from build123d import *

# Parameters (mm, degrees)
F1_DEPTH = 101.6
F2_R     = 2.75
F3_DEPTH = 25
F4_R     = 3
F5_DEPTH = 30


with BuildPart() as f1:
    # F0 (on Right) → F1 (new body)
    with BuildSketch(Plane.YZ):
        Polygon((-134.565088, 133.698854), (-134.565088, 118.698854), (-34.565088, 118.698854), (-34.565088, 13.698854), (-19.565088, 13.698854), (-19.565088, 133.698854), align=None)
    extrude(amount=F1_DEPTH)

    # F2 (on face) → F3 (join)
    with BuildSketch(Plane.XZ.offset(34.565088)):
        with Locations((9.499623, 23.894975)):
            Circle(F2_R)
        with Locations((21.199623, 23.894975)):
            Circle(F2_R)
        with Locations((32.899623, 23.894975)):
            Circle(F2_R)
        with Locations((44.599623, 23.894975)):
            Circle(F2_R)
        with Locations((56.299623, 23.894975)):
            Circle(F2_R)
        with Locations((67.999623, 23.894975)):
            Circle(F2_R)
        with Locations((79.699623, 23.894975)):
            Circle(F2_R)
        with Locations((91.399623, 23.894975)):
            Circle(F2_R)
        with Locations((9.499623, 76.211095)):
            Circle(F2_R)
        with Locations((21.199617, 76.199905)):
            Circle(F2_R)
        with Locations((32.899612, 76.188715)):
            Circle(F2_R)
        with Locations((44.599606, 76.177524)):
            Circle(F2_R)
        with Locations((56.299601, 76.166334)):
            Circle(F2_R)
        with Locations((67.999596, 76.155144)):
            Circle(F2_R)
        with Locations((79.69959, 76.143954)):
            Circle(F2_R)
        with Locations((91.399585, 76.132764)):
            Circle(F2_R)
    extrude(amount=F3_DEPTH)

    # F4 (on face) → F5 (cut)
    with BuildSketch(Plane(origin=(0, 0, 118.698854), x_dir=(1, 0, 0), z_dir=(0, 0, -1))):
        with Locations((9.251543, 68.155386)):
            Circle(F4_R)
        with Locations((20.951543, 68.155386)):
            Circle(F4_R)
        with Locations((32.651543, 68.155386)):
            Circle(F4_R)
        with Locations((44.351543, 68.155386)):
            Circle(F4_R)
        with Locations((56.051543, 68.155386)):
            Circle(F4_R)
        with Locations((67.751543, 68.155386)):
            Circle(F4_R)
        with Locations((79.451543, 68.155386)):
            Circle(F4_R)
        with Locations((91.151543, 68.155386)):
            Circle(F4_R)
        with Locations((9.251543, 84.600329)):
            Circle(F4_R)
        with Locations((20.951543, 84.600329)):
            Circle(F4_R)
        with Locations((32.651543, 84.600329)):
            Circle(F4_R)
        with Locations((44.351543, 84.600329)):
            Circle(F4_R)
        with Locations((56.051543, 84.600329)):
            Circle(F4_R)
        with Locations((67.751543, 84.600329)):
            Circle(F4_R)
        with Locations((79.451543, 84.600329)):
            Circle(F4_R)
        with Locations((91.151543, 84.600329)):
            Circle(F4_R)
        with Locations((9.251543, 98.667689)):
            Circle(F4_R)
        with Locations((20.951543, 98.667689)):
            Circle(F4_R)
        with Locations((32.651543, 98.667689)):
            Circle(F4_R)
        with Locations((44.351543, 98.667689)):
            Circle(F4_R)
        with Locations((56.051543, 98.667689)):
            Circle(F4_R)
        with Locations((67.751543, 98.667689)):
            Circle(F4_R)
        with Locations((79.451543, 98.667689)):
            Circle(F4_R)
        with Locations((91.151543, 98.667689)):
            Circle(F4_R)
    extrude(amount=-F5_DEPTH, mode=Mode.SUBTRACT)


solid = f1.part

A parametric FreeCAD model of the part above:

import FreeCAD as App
import Part
import Sketcher
from FreeCAD import Vector
Q = App.Units.Quantity


def add_polygon(sketch, points):
    """Adds a closed chain of lines whose ends are joined by coincident constraints."""
    first, n = sketch.GeometryCount, len(points)
    for a, b in zip(points, points[1:] + points[:1]):
        sketch.addGeometry(Part.LineSegment(App.Vector(*a, 0), App.Vector(*b, 0)), False)
    for i in range(n):
        sketch.addConstraint(Sketcher.Constraint("Coincident", first + i, 2, first + (i + 1) % n, 1))

doc = App.newDocument("Part")
body = doc.addObject("PartDesign::Body", "Body")

sketch1 = body.newObject("Sketcher::SketchObject", "Sketch")
sketch1.AttachmentSupport = (doc.getObject("YZ_Plane"), [""])
sketch1.MapMode = "FlatFace"
add_polygon(sketch1, [(-135, 134), (-135, 119), (-35, 119), (-35, 14), (-20, 14), (-20, 134)])
sketch1.addConstraint(Sketcher.Constraint("Vertical", 0))
sketch1.addConstraint(Sketcher.Constraint("Horizontal", 1))
sketch1.addConstraint(Sketcher.Constraint("Vertical", 2))
sketch1.addConstraint(Sketcher.Constraint("Horizontal", 3))
sketch1.addConstraint(Sketcher.Constraint("Vertical", 4))
sketch1.addConstraint(Sketcher.Constraint("Horizontal", 5))
sketch1.addConstraint(Sketcher.Constraint("Equal", 3, 0))
sketch1.addConstraint(Sketcher.Constraint("DistanceX", 1, 1, 1, 2, Q("100 mm")))
sketch1.addConstraint(Sketcher.Constraint("DistanceX", 3, 1, 3, 2, Q("15 mm")))
sketch1.addConstraint(Sketcher.Constraint("DistanceY", 2, 2, 2, 1, Q("105 mm")))
sketch1.addConstraint(Sketcher.Constraint("DistanceX", 0, 2, -1, 1, Q("134.565088 mm")))
sketch1.addConstraint(Sketcher.Constraint("DistanceY", -1, 1, 0, 2, Q("118.698854 mm")))
pad1 = body.newObject("PartDesign::Pad", "Pad")
pad1.Profile = sketch1
pad1.Length = 101.6

sketch2 = body.newObject("Sketcher::SketchObject", "Sketch001")
sketch2.AttachmentSupport = (doc.getObject("XZ_Plane"), [""])
sketch2.MapMode = "FlatFace"
sketch2.AttachmentOffset = App.Placement(Vector(0, 0, 34.565088), App.Rotation())
sketch2.addGeometry(Part.Circle(Vector(9.5, 23.9, 0), Vector(0, 0, 1), 2.8), False)
sketch2.addGeometry(Part.Circle(Vector(21.2, 23.9, 0), Vector(0, 0, 1), 2.8), False)
sketch2.addGeometry(Part.Circle(Vector(32.9, 23.9, 0), Vector(0, 0, 1), 2.8), False)
sketch2.addGeometry(Part.Circle(Vector(44.6, 23.9, 0), Vector(0, 0, 1), 2.8), False)
sketch2.addGeometry(Part.Circle(Vector(56.3, 23.9, 0), Vector(0, 0, 1), 2.8), False)
sketch2.addGeometry(Part.Circle(Vector(68, 23.9, 0), Vector(0, 0, 1), 2.8), False)
sketch2.addGeometry(Part.Circle(Vector(79.7, 23.9, 0), Vector(0, 0, 1), 2.8), False)
sketch2.addGeometry(Part.Circle(Vector(91.4, 23.9, 0), Vector(0, 0, 1), 2.8), False)
sketch2.addGeometry(Part.Circle(Vector(9.5, 76.2, 0), Vector(0, 0, 1), 2.8), False)
sketch2.addGeometry(Part.Circle(Vector(21.2, 76.2, 0), Vector(0, 0, 1), 2.8), False)
sketch2.addGeometry(Part.Circle(Vector(32.9, 76.2, 0), Vector(0, 0, 1), 2.8), False)
sketch2.addGeometry(Part.Circle(Vector(44.6, 76.2, 0), Vector(0, 0, 1), 2.8), False)
sketch2.addGeometry(Part.Circle(Vector(56.3, 76.2, 0), Vector(0, 0, 1), 2.8), False)
sketch2.addGeometry(Part.Circle(Vector(68, 76.2, 0), Vector(0, 0, 1), 2.8), False)
sketch2.addGeometry(Part.Circle(Vector(79.7, 76.1, 0), Vector(0, 0, 1), 2.8), False)
sketch2.addGeometry(Part.Circle(Vector(91.4, 76.1, 0), Vector(0, 0, 1), 2.8), False)
sketch2.addConstraint(Sketcher.Constraint("Equal", 0, 1))
sketch2.addConstraint(Sketcher.Constraint("Equal", 1, 2))
sketch2.addConstraint(Sketcher.Constraint("Equal", 2, 3))
sketch2.addConstraint(Sketcher.Constraint("Equal", 3, 4))
sketch2.addConstraint(Sketcher.Constraint("Equal", 4, 5))
sketch2.addConstraint(Sketcher.Constraint("Equal", 5, 6))
sketch2.addConstraint(Sketcher.Constraint("Equal", 6, 7))
sketch2.addConstraint(Sketcher.Constraint("Equal", 7, 8))
sketch2.addConstraint(Sketcher.Constraint("Equal", 8, 9))
sketch2.addConstraint(Sketcher.Constraint("Equal", 9, 10))
sketch2.addConstraint(Sketcher.Constraint("Equal", 10, 11))
sketch2.addConstraint(Sketcher.Constraint("Equal", 11, 12))
sketch2.addConstraint(Sketcher.Constraint("Equal", 12, 13))
sketch2.addConstraint(Sketcher.Constraint("Equal", 13, 14))
sketch2.addConstraint(Sketcher.Constraint("Equal", 14, 15))
sketch2.addConstraint(Sketcher.Constraint("Horizontal", 0, 3, 1, 3))
sketch2.addConstraint(Sketcher.Constraint("Horizontal", 1, 3, 2, 3))
sketch2.addConstraint(Sketcher.Constraint("Horizontal", 2, 3, 3, 3))
sketch2.addConstraint(Sketcher.Constraint("Horizontal", 3, 3, 4, 3))
sketch2.addConstraint(Sketcher.Constraint("Horizontal", 4, 3, 5, 3))
sketch2.addConstraint(Sketcher.Constraint("Horizontal", 5, 3, 6, 3))
sketch2.addConstraint(Sketcher.Constraint("Horizontal", 6, 3, 7, 3))
sketch2.addConstraint(Sketcher.Constraint("Vertical", 0, 3, 8, 3))
sketch2.addConstraint(Sketcher.Constraint("Diameter", 0, Q("5.5 mm")))
sketch2.addConstraint(Sketcher.Constraint("DistanceX", 0, 3, 1, 3, Q("11.7 mm")))
sketch2.addConstraint(Sketcher.Constraint("DistanceX", 1, 3, 2, 3, Q("11.7 mm")))
sketch2.addConstraint(Sketcher.Constraint("DistanceX", 2, 3, 3, 3, Q("11.7 mm")))
sketch2.addConstraint(Sketcher.Constraint("DistanceX", 3, 3, 4, 3, Q("11.7 mm")))
sketch2.addConstraint(Sketcher.Constraint("DistanceX", 4, 3, 5, 3, Q("11.7 mm")))
sketch2.addConstraint(Sketcher.Constraint("DistanceX", 5, 3, 6, 3, Q("11.7 mm")))
sketch2.addConstraint(Sketcher.Constraint("DistanceX", 6, 3, 7, 3, Q("11.7 mm")))
sketch2.addConstraint(Sketcher.Constraint("DistanceX", -1, 1, 12, 3, Q("56.299601 mm")))
sketch2.addConstraint(Sketcher.Constraint("DistanceX", -1, 1, 10, 3, Q("32.899612 mm")))
sketch2.addConstraint(Sketcher.Constraint("DistanceX", -1, 1, 14, 3, Q("79.69959 mm")))
sketch2.addConstraint(Sketcher.Constraint("DistanceY", 0, 3, 8, 3, Q("52.31612 mm")))
sketch2.addConstraint(Sketcher.Constraint("DistanceY", 9, 3, 8, 3, Q("0.01119 mm")))
sketch2.addConstraint(Sketcher.Constraint("DistanceY", 10, 3, 9, 3, Q("0.01119 mm")))
sketch2.addConstraint(Sketcher.Constraint("DistanceX", 8, 3, 10, 3, Q("23.399989 mm")))
sketch2.addConstraint(Sketcher.Constraint("DistanceY", 11, 3, 10, 3, Q("0.011191 mm")))
sketch2.addConstraint(Sketcher.Constraint("DistanceX", 9, 3, 11, 3, Q("23.399989 mm")))
sketch2.addConstraint(Sketcher.Constraint("DistanceY", 12, 3, 11, 3, Q("0.01119 mm")))
sketch2.addConstraint(Sketcher.Constraint("DistanceY", 13, 3, 12, 3, Q("0.01119 mm")))
sketch2.addConstraint(Sketcher.Constraint("DistanceX", 11, 3, 13, 3, Q("23.39999 mm")))
sketch2.addConstraint(Sketcher.Constraint("DistanceY", 14, 3, 13, 3, Q("0.01119 mm")))
sketch2.addConstraint(Sketcher.Constraint("DistanceY", 15, 3, 14, 3, Q("0.01119 mm")))
sketch2.addConstraint(Sketcher.Constraint("DistanceX", 13, 3, 15, 3, Q("23.399989 mm")))
sketch2.addConstraint(Sketcher.Constraint("DistanceY", -1, 1, 0, 3, Q("23.894975 mm")))
sketch2.addConstraint(Sketcher.Constraint("DistanceX", -1, 1, 9, 3, Q("21.199617 mm")))
pad2 = body.newObject("PartDesign::Pad", "Pad001")
pad2.Profile = sketch2
pad2.Length = 25

sketch3 = body.newObject("Sketcher::SketchObject", "Sketch002")
sketch3.AttachmentSupport = (doc.getObject("XY_Plane"), [""])
sketch3.MapMode = "FlatFace"
sketch3.AttachmentOffset = App.Placement(Vector(0, 0, 118.698854), App.Rotation())
sketch3.addGeometry(Part.Circle(Vector(9.3, -68.2, 0), Vector(0, 0, 1), 3), False)
sketch3.addGeometry(Part.Circle(Vector(21, -68.2, 0), Vector(0, 0, 1), 3), False)
sketch3.addGeometry(Part.Circle(Vector(32.7, -68.2, 0), Vector(0, 0, 1), 3), False)
sketch3.addGeometry(Part.Circle(Vector(44.4, -68.2, 0), Vector(0, 0, 1), 3), False)
sketch3.addGeometry(Part.Circle(Vector(56.1, -68.2, 0), Vector(0, 0, 1), 3), False)
sketch3.addGeometry(Part.Circle(Vector(67.8, -68.2, 0), Vector(0, 0, 1), 3), False)
sketch3.addGeometry(Part.Circle(Vector(79.5, -68.2, 0), Vector(0, 0, 1), 3), False)
sketch3.addGeometry(Part.Circle(Vector(91.2, -68.2, 0), Vector(0, 0, 1), 3), False)
sketch3.addGeometry(Part.Circle(Vector(9.3, -84.6, 0), Vector(0, 0, 1), 3), False)
sketch3.addGeometry(Part.Circle(Vector(21, -84.6, 0), Vector(0, 0, 1), 3), False)
sketch3.addGeometry(Part.Circle(Vector(32.7, -84.6, 0), Vector(0, 0, 1), 3), False)
sketch3.addGeometry(Part.Circle(Vector(44.4, -84.6, 0), Vector(0, 0, 1), 3), False)
sketch3.addGeometry(Part.Circle(Vector(56.1, -84.6, 0), Vector(0, 0, 1), 3), False)
sketch3.addGeometry(Part.Circle(Vector(67.8, -84.6, 0), Vector(0, 0, 1), 3), False)
sketch3.addGeometry(Part.Circle(Vector(79.5, -84.6, 0), Vector(0, 0, 1), 3), False)
sketch3.addGeometry(Part.Circle(Vector(91.2, -84.6, 0), Vector(0, 0, 1), 3), False)
sketch3.addGeometry(Part.Circle(Vector(9.3, -98.7, 0), Vector(0, 0, 1), 3), False)
sketch3.addGeometry(Part.Circle(Vector(21, -98.7, 0), Vector(0, 0, 1), 3), False)
sketch3.addGeometry(Part.Circle(Vector(32.7, -98.7, 0), Vector(0, 0, 1), 3), False)
sketch3.addGeometry(Part.Circle(Vector(44.4, -98.7, 0), Vector(0, 0, 1), 3), False)
sketch3.addGeometry(Part.Circle(Vector(56.1, -98.7, 0), Vector(0, 0, 1), 3), False)
sketch3.addGeometry(Part.Circle(Vector(67.8, -98.7, 0), Vector(0, 0, 1), 3), False)
sketch3.addGeometry(Part.Circle(Vector(79.5, -98.7, 0), Vector(0, 0, 1), 3), False)
sketch3.addGeometry(Part.Circle(Vector(91.2, -98.7, 0), Vector(0, 0, 1), 3), False)
sketch3.addConstraint(Sketcher.Constraint("Equal", 0, 1))
sketch3.addConstraint(Sketcher.Constraint("Equal", 1, 2))
sketch3.addConstraint(Sketcher.Constraint("Equal", 2, 3))
sketch3.addConstraint(Sketcher.Constraint("Equal", 3, 4))
sketch3.addConstraint(Sketcher.Constraint("Equal", 4, 5))
sketch3.addConstraint(Sketcher.Constraint("Equal", 5, 6))
sketch3.addConstraint(Sketcher.Constraint("Equal", 6, 7))
sketch3.addConstraint(Sketcher.Constraint("Equal", 7, 8))
sketch3.addConstraint(Sketcher.Constraint("Equal", 8, 9))
sketch3.addConstraint(Sketcher.Constraint("Equal", 9, 10))
sketch3.addConstraint(Sketcher.Constraint("Equal", 10, 11))
sketch3.addConstraint(Sketcher.Constraint("Equal", 11, 12))
sketch3.addConstraint(Sketcher.Constraint("Equal", 12, 13))
sketch3.addConstraint(Sketcher.Constraint("Equal", 13, 14))
sketch3.addConstraint(Sketcher.Constraint("Equal", 14, 15))
sketch3.addConstraint(Sketcher.Constraint("Equal", 15, 16))
sketch3.addConstraint(Sketcher.Constraint("Equal", 16, 17))
sketch3.addConstraint(Sketcher.Constraint("Equal", 17, 18))
sketch3.addConstraint(Sketcher.Constraint("Equal", 18, 19))
sketch3.addConstraint(Sketcher.Constraint("Equal", 19, 20))
sketch3.addConstraint(Sketcher.Constraint("Equal", 20, 21))
sketch3.addConstraint(Sketcher.Constraint("Equal", 21, 22))
sketch3.addConstraint(Sketcher.Constraint("Equal", 22, 23))
sketch3.addConstraint(Sketcher.Constraint("Horizontal", 0, 3, 1, 3))
sketch3.addConstraint(Sketcher.Constraint("Horizontal", 1, 3, 2, 3))
sketch3.addConstraint(Sketcher.Constraint("Horizontal", 2, 3, 3, 3))
sketch3.addConstraint(Sketcher.Constraint("Horizontal", 3, 3, 4, 3))
sketch3.addConstraint(Sketcher.Constraint("Horizontal", 4, 3, 5, 3))
sketch3.addConstraint(Sketcher.Constraint("Horizontal", 5, 3, 6, 3))
sketch3.addConstraint(Sketcher.Constraint("Horizontal", 6, 3, 7, 3))
sketch3.addConstraint(Sketcher.Constraint("Horizontal", 8, 3, 9, 3))
sketch3.addConstraint(Sketcher.Constraint("Horizontal", 9, 3, 10, 3))
sketch3.addConstraint(Sketcher.Constraint("Horizontal", 10, 3, 11, 3))
sketch3.addConstraint(Sketcher.Constraint("Horizontal", 11, 3, 12, 3))
sketch3.addConstraint(Sketcher.Constraint("Horizontal", 12, 3, 13, 3))
sketch3.addConstraint(Sketcher.Constraint("Horizontal", 13, 3, 14, 3))
sketch3.addConstraint(Sketcher.Constraint("Horizontal", 14, 3, 15, 3))
sketch3.addConstraint(Sketcher.Constraint("Horizontal", 16, 3, 17, 3))
sketch3.addConstraint(Sketcher.Constraint("Horizontal", 17, 3, 18, 3))
sketch3.addConstraint(Sketcher.Constraint("Horizontal", 18, 3, 19, 3))
sketch3.addConstraint(Sketcher.Constraint("Horizontal", 19, 3, 20, 3))
sketch3.addConstraint(Sketcher.Constraint("Horizontal", 20, 3, 21, 3))
sketch3.addConstraint(Sketcher.Constraint("Horizontal", 21, 3, 22, 3))
sketch3.addConstraint(Sketcher.Constraint("Horizontal", 22, 3, 23, 3))
sketch3.addConstraint(Sketcher.Constraint("Vertical", 0, 3, 8, 3))
sketch3.addConstraint(Sketcher.Constraint("Vertical", 1, 3, 9, 3))
sketch3.addConstraint(Sketcher.Constraint("Vertical", 2, 3, 10, 3))
sketch3.addConstraint(Sketcher.Constraint("Vertical", 3, 3, 11, 3))
sketch3.addConstraint(Sketcher.Constraint("Vertical", 4, 3, 12, 3))
sketch3.addConstraint(Sketcher.Constraint("Vertical", 5, 3, 13, 3))
sketch3.addConstraint(Sketcher.Constraint("Vertical", 6, 3, 14, 3))
sketch3.addConstraint(Sketcher.Constraint("Vertical", 7, 3, 15, 3))
sketch3.addConstraint(Sketcher.Constraint("Vertical", 8, 3, 16, 3))
sketch3.addConstraint(Sketcher.Constraint("Vertical", 9, 3, 17, 3))
sketch3.addConstraint(Sketcher.Constraint("Vertical", 10, 3, 18, 3))
sketch3.addConstraint(Sketcher.Constraint("Vertical", 11, 3, 19, 3))
sketch3.addConstraint(Sketcher.Constraint("Vertical", 12, 3, 20, 3))
sketch3.addConstraint(Sketcher.Constraint("Vertical", 13, 3, 21, 3))
sketch3.addConstraint(Sketcher.Constraint("Vertical", 14, 3, 22, 3))
sketch3.addConstraint(Sketcher.Constraint("Vertical", 15, 3, 23, 3))
sketch3.addConstraint(Sketcher.Constraint("Diameter", 0, Q("6 mm")))
sketch3.addConstraint(Sketcher.Constraint("DistanceX", 0, 3, 1, 3, Q("11.7 mm")))
sketch3.addConstraint(Sketcher.Constraint("DistanceX", 1, 3, 2, 3, Q("11.7 mm")))
sketch3.addConstraint(Sketcher.Constraint("DistanceX", 2, 3, 3, 3, Q("11.7 mm")))
sketch3.addConstraint(Sketcher.Constraint("DistanceX", 3, 3, 4, 3, Q("11.7 mm")))
sketch3.addConstraint(Sketcher.Constraint("DistanceX", 4, 3, 5, 3, Q("11.7 mm")))
sketch3.addConstraint(Sketcher.Constraint("DistanceX", 5, 3, 6, 3, Q("11.7 mm")))
sketch3.addConstraint(Sketcher.Constraint("DistanceX", 6, 3, 7, 3, Q("11.7 mm")))
sketch3.addConstraint(Sketcher.Constraint("DistanceY", 8, 3, -1, 1, Q("84.600329 mm")))
sketch3.addConstraint(Sketcher.Constraint("DistanceY", 16, 3, -1, 1, Q("98.667689 mm")))
sketch3.addConstraint(Sketcher.Constraint("DistanceX", -1, 1, 0, 3, Q("9.251543 mm")))
sketch3.addConstraint(Sketcher.Constraint("DistanceY", 0, 3, -1, 1, Q("68.155386 mm")))
pocket1 = body.newObject("PartDesign::Pocket", "Pocket")
pocket1.Profile = sketch3
pocket1.Length = 30
pocket1.Reversed = True

doc.recompute()
